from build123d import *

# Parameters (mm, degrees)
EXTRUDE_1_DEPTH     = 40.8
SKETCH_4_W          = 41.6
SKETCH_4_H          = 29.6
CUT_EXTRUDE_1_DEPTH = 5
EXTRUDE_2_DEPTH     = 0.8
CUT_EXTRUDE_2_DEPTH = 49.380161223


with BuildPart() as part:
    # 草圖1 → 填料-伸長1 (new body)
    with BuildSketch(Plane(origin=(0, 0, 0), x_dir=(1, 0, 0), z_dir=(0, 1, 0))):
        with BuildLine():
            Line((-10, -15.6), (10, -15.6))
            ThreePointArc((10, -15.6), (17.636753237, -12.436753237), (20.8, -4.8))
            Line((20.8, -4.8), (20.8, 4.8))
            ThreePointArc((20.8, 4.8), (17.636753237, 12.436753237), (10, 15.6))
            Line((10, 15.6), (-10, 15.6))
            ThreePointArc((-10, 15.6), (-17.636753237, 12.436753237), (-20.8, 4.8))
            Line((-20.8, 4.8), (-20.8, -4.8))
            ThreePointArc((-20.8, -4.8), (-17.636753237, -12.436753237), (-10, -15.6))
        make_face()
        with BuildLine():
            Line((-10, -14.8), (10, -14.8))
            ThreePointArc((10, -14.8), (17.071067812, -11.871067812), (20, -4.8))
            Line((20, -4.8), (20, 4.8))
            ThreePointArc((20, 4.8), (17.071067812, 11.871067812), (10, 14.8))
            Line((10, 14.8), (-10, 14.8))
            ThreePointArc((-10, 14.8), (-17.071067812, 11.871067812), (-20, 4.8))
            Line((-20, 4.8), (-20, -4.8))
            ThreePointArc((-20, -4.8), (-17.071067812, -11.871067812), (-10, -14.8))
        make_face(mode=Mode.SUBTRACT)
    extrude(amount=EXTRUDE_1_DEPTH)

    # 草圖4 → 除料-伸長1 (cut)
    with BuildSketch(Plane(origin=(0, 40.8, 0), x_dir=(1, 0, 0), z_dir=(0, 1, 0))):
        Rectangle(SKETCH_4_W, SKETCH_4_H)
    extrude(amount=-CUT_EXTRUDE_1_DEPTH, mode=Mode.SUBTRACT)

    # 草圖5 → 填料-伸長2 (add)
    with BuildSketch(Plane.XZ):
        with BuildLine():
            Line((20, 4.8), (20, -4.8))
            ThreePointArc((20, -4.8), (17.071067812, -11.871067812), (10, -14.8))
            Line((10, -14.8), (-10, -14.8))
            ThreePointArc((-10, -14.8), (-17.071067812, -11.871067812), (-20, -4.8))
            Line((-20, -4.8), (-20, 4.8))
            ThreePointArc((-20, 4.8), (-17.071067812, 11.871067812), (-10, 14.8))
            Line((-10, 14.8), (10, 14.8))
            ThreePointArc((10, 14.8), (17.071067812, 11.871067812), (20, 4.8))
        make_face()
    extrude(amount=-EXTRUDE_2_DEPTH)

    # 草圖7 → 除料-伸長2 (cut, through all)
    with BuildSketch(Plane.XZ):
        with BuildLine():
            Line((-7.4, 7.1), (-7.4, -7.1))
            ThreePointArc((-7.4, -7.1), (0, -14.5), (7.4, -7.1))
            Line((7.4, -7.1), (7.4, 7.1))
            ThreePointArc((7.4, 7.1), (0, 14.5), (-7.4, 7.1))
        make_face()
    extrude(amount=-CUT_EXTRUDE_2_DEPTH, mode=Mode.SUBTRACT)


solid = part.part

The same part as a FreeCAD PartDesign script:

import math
import FreeCAD as App
import Part
import Sketcher

V = App.Vector

doc = App.newDocument("Part")
params = doc.addObject("Spreadsheet::Sheet", "Params")
for row, (alias, value) in enumerate([
    ("sketch1_radius", "10 mm"),
    ("sketch1_radius2", "10.8 mm"),
    ("sketch1_width", "20 mm"),
    ("sketch1_height", "9.6 mm"),
    ("pad1_length", "40.8 mm"),
    ("sketch2_width", "41.6 mm"),
    ("sketch2_height", "29.6 mm"),
    ("pocket1_length", "5 mm"),
    ("sketch3_radius", "10 mm"),
    ("sketch3_width", "20 mm"),
    ("sketch3_height", "9.6 mm"),
    ("pad2_length", "0.8 mm"),
    ("sketch4_radius", "7.4 mm"),
    ("sketch4_height", "14.2 mm"),
], start=1):
    params.set(f"A{row}", alias)
    params.set(f"B{row}", "=" + value)
    params.setAlias(f"B{row}", alias)

body = doc.addObject("PartDesign::Body", "Body")

# Sketch on XZ plane
sketch1 = doc.addObject("Sketcher::SketchObject", "Sketch")
body.addObject(sketch1)
sketch1.AttachmentSupport = (doc.XZ_Plane, [""])
sketch1.MapMode = "FlatFace"
sketch1.addGeometry([
    Part.LineSegment(V(-10, 16, 0), V(10, 16, 0)),  # 0
    Part.ArcOfCircle(Part.Circle(V(10, 5, 0), V(0, 0, 1), 11), math.radians(0), math.radians(90)),  # 1
    Part.LineSegment(V(21, 5, 0), V(21, -5, 0)),  # 2
    Part.ArcOfCircle(Part.Circle(V(10, -5, 0), V(0, 0, 1), 11), math.radians(-90), math.radians(0)),  # 3
    Part.LineSegment(V(10, -16, 0), V(-10, -16, 0)),  # 4
    Part.ArcOfCircle(Part.Circle(V(-10, -5, 0), V(0, 0, 1), 11), math.radians(180), math.radians(270)),  # 5
    Part.LineSegment(V(-21, -5, 0), V(-21, 5, 0)),  # 6
    Part.ArcOfCircle(Part.Circle(V(-10, 5, 0), V(0, 0, 1), 11), math.radians(90), math.radians(180)),  # 7
    Part.LineSegment(V(10, 15, 0), V(-10, 15, 0)),  # 8
    Part.ArcOfCircle(Part.Circle(V(-10, 5, 0), V(0, 0, 1), 10), math.radians(90), math.radians(180)),  # 9
    Part.LineSegment(V(-20, 5, 0), V(-20, -5, 0)),  # 10
    Part.ArcOfCircle(Part.Circle(V(-10, -5, 0), V(0, 0, 1), 10), math.radians(180), math.radians(270)),  # 11
    Part.LineSegment(V(-10, -15, 0), V(10, -15, 0)),  # 12
    Part.ArcOfCircle(Part.Circle(V(10, -5, 0), V(0, 0, 1), 10), math.radians(-90), math.radians(0)),  # 13
    Part.LineSegment(V(20, -5, 0), V(20, 5, 0)),  # 14
    Part.ArcOfCircle(Part.Circle(V(10, 5, 0), V(0, 0, 1), 10), math.radians(0), math.radians(90)),  # 15
], False)
sketch1.addConstraint([
    Sketcher.Constraint("Tangent", 0, 2, 1, 2),
    Sketcher.Constraint("Tangent", 1, 1, 2, 1),
    Sketcher.Constraint("Tangent", 2, 2, 3, 2),
    Sketcher.Constraint("Tangent", 3, 1, 4, 1),
    Sketcher.Constraint("Tangent", 4, 2, 5, 2),
    Sketcher.Constraint("Tangent", 5, 1, 6, 1),
    Sketcher.Constraint("Tangent", 6, 2, 7, 2),
    Sketcher.Constraint("Tangent", 7, 1, 0, 1),
    Sketcher.Constraint("Tangent", 8, 2, 9, 1),
    Sketcher.Constraint("Tangent", 9, 2, 10, 1),
    Sketcher.Constraint("Tangent", 10, 2, 11, 1),
    Sketcher.Constraint("Tangent", 11, 2, 12, 1),
    Sketcher.Constraint("Tangent", 12, 2, 13, 1),
    Sketcher.Constraint("Tangent", 13, 2, 14, 1),
    Sketcher.Constraint("Tangent", 14, 2, 15, 1),
    Sketcher.Constraint("Tangent", 15, 2, 8, 1),
    Sketcher.Constraint("Horizontal", 0),
    Sketcher.Constraint("Vertical", 2),
    Sketcher.Constraint("Horizontal", 4),
    Sketcher.Constraint("Vertical", 6),
    Sketcher.Constraint("Horizontal", 8),
    Sketcher.Constraint("Vertical", 10),
    Sketcher.Constraint("Horizontal", 12),
    Sketcher.Constraint("Vertical", 14),
    Sketcher.Constraint("Coincident", 9, 3, 7, 3),
    Sketcher.Constraint("Coincident", 11, 3, 5, 3),
    Sketcher.Constraint("Coincident", 13, 3, 3, 3),
    Sketcher.Constraint("Equal", 1, 3),
    Sketcher.Constraint("Equal", 3, 5),
    Sketcher.Constraint("Equal", 5, 7),
    Sketcher.Constraint("Equal", 13, 15),
    Sketcher.Constraint("Symmetric", 1, 3, 5, 3, -1, 1),
    Sketcher.Constraint("Radius", 9, 10.0),
    Sketcher.Constraint("Radius", 1, 10.8),
    Sketcher.Constraint("DistanceX", 0, 1, 0, 2, 20.0),
    Sketcher.Constraint("DistanceY", 2, 2, 2, 1, 9.6),
])
sketch1.setExpression("Constraints[32]", "Params.sketch1_radius")
sketch1.setExpression("Constraints[33]", "Params.sketch1_radius2")
sketch1.setExpression("Constraints[34]", "Params.sketch1_width")
sketch1.setExpression("Constraints[35]", "Params.sketch1_height")
pad1 = doc.addObject("PartDesign::Pad", "Pad")
body.addObject(pad1)
pad1.Profile = sketch1
pad1.setExpression("Length", "Params.pad1_length")
pad1.Reversed = True

# Sketch on XZ plane
sketch2 = doc.addObject("Sketcher::SketchObject", "Sketch001")
body.addObject(sketch2)
sketch2.AttachmentSupport = (doc.XZ_Plane, [""])
sketch2.MapMode = "FlatFace"
sketch2.AttachmentOffset = App.Placement(V(0, 0, -40.8), App.Rotation())
sketch2.addGeometry([
    Part.LineSegment(V(-21, -15, 0), V(-21, 15, 0)),
    Part.LineSegment(V(-21, 15, 0), V(21, 15, 0)),
    Part.LineSegment(V(21, 15, 0), V(21, -15, 0)),
    Part.LineSegment(V(21, -15, 0), V(-21, -15, 0)),
], False)
sketch2.addConstraint([
    Sketcher.Constraint("Coincident", 0, 2, 1, 1),
    Sketcher.Constraint("Coincident", 1, 2, 2, 1),
    Sketcher.Constraint("Coincident", 2, 2, 3, 1),
    Sketcher.Constraint("Coincident", 3, 2, 0, 1),
    Sketcher.Constraint("Vertical", 0),
    Sketcher.Constraint("Horizontal", 1),
    Sketcher.Constraint("Vertical", 2),
    Sketcher.Constraint("Horizontal", 3),
    Sketcher.Constraint("Symmetric", 0, 2, 2, 2, -1, 1),
    Sketcher.Constraint("DistanceX", 1, 1, 1, 2, 41.6),
    Sketcher.Constraint("DistanceY", 0, 1, 0, 2, 29.6),
])
sketch2.setExpression("Constraints[9]", "Params.sketch2_width")
sketch2.setExpression("Constraints[10]", "Params.sketch2_height")
pocket1 = doc.addObject("PartDesign::Pocket", "Pocket")
body.addObject(pocket1)
pocket1.Profile = sketch2
pocket1.setExpression("Length", "Params.pocket1_length")
pocket1.Reversed = True

# Sketch on XZ plane
sketch3 = doc.addObject("Sketcher::SketchObject", "Sketch002")
body.addObject(sketch3)
sketch3.AttachmentSupport = (doc.XZ_Plane, [""])
sketch3.MapMode = "FlatFace"
sketch3.addGeometry([
    Part.LineSegment(V(20, -5, 0), V(20, 5, 0)),  # 0
    Part.ArcOfCircle(Part.Circle(V(10, 5, 0), V(0, 0, 1), 10), math.radians(0), math.radians(90)),  # 1
    Part.LineSegment(V(10, 15, 0), V(-10, 15, 0)),  # 2
    Part.ArcOfCircle(Part.Circle(V(-10, 5, 0), V(0, 0, 1), 10), math.radians(90), math.radians(180)),  # 3
    Part.LineSegment(V(-20, 5, 0), V(-20, -5, 0)),  # 4
    Part.ArcOfCircle(Part.Circle(V(-10, -5, 0), V(0, 0, 1), 10), math.radians(180), math.radians(270)),  # 5
    Part.LineSegment(V(-10, -15, 0), V(10, -15, 0)),  # 6
    Part.ArcOfCircle(Part.Circle(V(10, -5, 0), V(0, 0, 1), 10), math.radians(-90), math.radians(0)),  # 7
], False)
sketch3.addConstraint([
    Sketcher.Constraint("Tangent", 0, 2, 1, 1),
    Sketcher.Constraint("Tangent", 1, 2, 2, 1),
    Sketcher.Constraint("Tangent", 2, 2, 3, 1),
    Sketcher.Constraint("Tangent", 3, 2, 4, 1),
    Sketcher.Constraint("Tangent", 4, 2, 5, 1),
    Sketcher.Constraint("Tangent", 5, 2, 6, 1),
    Sketcher.Constraint("Tangent", 6, 2, 7, 1),
    Sketcher.Constraint("Tangent", 7, 2, 0, 1),
    Sketcher.Constraint("Vertical", 0),
    Sketcher.Constraint("Horizontal", 2),
    Sketcher.Constraint("Vertical", 4),
    Sketcher.Constraint("Horizontal", 6),
    Sketcher.Constraint("Equal", 1, 3),
    Sketcher.Constraint("Equal", 3, 5),
    Sketcher.Constraint("Equal", 5, 7),
    Sketcher.Constraint("Symmetric", 1, 3, 5, 3, -1, 1),
    Sketcher.Constraint("Radius", 1, 10.0),
    Sketcher.Constraint("DistanceX", 2, 2, 2, 1, 20.0),
    Sketcher.Constraint("DistanceY", 0, 1, 0, 2, 9.6),
])
sketch3.setExpression("Constraints[16]", "Params.sketch3_radius")
sketch3.setExpression("Constraints[17]", "Params.sketch3_width")
sketch3.setExpression("Constraints[18]", "Params.sketch3_height")
pad2 = doc.addObject("PartDesign::Pad", "Pad001")
body.addObject(pad2)
pad2.Profile = sketch3
pad2.setExpression("Length", "Params.pad2_length")
pad2.Reversed = True

# Sketch on XZ plane
sketch4 = doc.addObject("Sketcher::SketchObject", "Sketch003")
body.addObject(sketch4)
sketch4.AttachmentSupport = (doc.XZ_Plane, [""])
sketch4.MapMode = "FlatFace"
sketch4.addGeometry([
    Part.LineSegment(V(-7, 7, 0), V(-7, -7, 0)),
    Part.ArcOfCircle(Part.Circle(V(0, -7, 0), V(0, 0, 1), 7), math.radians(180), math.radians(360)),
    Part.LineSegment(V(7, -7, 0), V(7, 7, 0)),
    Part.ArcOfCircle(Part.Circle(V(0, 7, 0), V(0, 0, 1), 7), math.radians(0), math.radians(180)),
], False)
sketch4.addConstraint([
    Sketcher.Constraint("Tangent", 0, 2, 1, 1),
    Sketcher.Constraint("Tangent", 1, 2, 2, 1),
    Sketcher.Constraint("Tangent", 2, 2, 3, 1),
    Sketcher.Constraint("Tangent", 3, 2, 0, 1),
    Sketcher.Constraint("Vertical", 0),
    Sketcher.Constraint("Vertical", 2),
    Sketcher.Constraint("Symmetric", 1, 3, 3, 3, -1, 1),
    Sketcher.Constraint("Radius", 1, 7.4),
    Sketcher.Constraint("DistanceY", 0, 2, 0, 1, 14.2),
])
sketch4.setExpression("Constraints[7]", "Params.sketch4_radius")
sketch4.setExpression("Constraints[8]", "Params.sketch4_height")
pocket2 = doc.addObject("PartDesign::Pocket", "Pocket001")
body.addObject(pocket2)
pocket2.Profile = sketch4
pocket2.Type = "ThroughAll"

doc.recompute()
